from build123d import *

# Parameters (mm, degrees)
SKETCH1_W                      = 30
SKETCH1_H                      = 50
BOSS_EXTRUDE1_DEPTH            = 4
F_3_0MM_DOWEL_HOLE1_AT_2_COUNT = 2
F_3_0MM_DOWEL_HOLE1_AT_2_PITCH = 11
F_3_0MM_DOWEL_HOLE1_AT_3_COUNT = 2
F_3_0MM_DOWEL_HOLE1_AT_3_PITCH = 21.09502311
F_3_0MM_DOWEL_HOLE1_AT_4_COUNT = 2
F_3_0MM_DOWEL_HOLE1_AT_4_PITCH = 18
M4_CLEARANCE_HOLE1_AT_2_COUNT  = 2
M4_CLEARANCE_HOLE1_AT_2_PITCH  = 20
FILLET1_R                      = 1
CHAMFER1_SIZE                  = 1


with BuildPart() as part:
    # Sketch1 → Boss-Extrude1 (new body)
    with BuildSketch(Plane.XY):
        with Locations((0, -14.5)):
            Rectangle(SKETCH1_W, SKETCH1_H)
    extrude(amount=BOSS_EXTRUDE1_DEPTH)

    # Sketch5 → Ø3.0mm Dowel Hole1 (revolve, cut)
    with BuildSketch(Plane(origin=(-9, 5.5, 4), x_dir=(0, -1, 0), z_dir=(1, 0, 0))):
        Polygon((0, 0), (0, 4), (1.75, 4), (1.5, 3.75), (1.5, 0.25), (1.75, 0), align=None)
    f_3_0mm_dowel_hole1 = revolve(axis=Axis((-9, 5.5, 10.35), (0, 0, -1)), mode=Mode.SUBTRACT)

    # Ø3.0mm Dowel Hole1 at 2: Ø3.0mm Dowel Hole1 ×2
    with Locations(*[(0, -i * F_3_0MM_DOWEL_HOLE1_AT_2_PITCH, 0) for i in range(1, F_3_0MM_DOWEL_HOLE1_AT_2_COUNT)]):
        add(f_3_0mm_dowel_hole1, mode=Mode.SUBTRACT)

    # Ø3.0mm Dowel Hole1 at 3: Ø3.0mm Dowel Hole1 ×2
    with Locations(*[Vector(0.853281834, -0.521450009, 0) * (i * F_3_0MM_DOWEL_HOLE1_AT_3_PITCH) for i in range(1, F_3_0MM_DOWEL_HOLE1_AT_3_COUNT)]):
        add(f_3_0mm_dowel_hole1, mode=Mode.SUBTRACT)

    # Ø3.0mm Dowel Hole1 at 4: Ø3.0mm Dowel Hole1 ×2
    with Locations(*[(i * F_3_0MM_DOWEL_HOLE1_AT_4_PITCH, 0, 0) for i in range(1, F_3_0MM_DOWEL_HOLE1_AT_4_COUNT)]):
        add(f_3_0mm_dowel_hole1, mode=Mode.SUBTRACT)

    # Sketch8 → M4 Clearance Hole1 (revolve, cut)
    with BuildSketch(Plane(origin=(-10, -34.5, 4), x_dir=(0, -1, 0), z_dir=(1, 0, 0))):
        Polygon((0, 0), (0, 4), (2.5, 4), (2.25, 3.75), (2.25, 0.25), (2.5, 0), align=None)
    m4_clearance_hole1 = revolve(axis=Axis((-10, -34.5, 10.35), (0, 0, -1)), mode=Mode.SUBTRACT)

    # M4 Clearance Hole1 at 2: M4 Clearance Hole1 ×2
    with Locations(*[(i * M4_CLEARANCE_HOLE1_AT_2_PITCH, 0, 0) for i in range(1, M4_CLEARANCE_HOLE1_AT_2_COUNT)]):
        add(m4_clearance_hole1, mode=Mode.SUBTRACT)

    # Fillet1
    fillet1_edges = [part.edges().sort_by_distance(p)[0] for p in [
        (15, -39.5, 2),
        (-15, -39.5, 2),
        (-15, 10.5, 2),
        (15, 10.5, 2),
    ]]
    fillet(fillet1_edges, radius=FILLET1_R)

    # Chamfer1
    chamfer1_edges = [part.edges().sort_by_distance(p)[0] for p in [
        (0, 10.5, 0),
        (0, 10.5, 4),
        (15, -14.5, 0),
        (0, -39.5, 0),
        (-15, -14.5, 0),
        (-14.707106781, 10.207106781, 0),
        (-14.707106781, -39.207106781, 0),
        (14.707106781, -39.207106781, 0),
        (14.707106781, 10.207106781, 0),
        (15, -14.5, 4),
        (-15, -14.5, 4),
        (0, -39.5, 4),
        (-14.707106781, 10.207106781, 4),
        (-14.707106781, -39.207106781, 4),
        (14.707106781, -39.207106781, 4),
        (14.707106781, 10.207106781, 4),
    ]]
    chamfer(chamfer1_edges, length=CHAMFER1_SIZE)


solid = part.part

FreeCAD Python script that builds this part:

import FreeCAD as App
import Part
import Sketcher

V = App.Vector
Q = App.Units.Quantity


def edges_at(feature, points):
    """Names of the edges that pass closest to the given points."""
    edges = feature.Shape.Edges
    near = lambda p: min(range(len(edges)), key=lambda i: edges[i].distToShape(Part.Vertex(*p))[0])
    return sorted({f"Edge{near(p) + 1}" for p in points})

doc = App.newDocument("Part")
body = doc.addObject("PartDesign::Body", "Body")

# Sketch on XY plane
sketch1 = body.newObject("Sketcher::SketchObject", "Sketch")
sketch1.AttachmentSupport = (doc.getObject("XY_Plane"), [""])
sketch1.MapMode = "FlatFace"
sketch1.addGeometry([
    Part.LineSegment(V(-15, 10, 0), V(-15, -40, 0)),
    Part.LineSegment(V(-15, -40, 0), V(15, -40, 0)),
    Part.LineSegment(V(15, -40, 0), V(15, 10, 0)),
    Part.LineSegment(V(15, 10, 0), V(-15, 10, 0)),
], False)
sketch1.addConstraint([
    Sketcher.Constraint("Coincident", 0, 2, 1, 1),
    Sketcher.Constraint("Coincident", 1, 2, 2, 1),
    Sketcher.Constraint("Coincident", 2, 2, 3, 1),
    Sketcher.Constraint("Coincident", 3, 2, 0, 1),
    Sketcher.Constraint("Vertical", 0),
    Sketcher.Constraint("Horizontal", 1),
    Sketcher.Constraint("Vertical", 2),
    Sketcher.Constraint("Horizontal", 3),
    Sketcher.Constraint("DistanceX", 1, 1, 1, 2, Q("30 mm")),
    Sketcher.Constraint("DistanceY", 0, 2, 0, 1, Q("50 mm")),
    Sketcher.Constraint("DistanceX", 0, 2, -1, 1, Q("15 mm")),
    Sketcher.Constraint("DistanceY", 0, 2, -1, 1, Q("39.5 mm")),
])
pad1 = body.newObject("PartDesign::Pad", "Pad")
pad1.Profile = sketch1
pad1.Length = 4

# Sketch on YZ plane
sketch2 = body.newObject("Sketcher::SketchObject", "Sketch001")
sketch2.AttachmentSupport = (doc.getObject("YZ_Plane"), [""])
sketch2.MapMode = "FlatFace"
sketch2.AttachmentOffset = App.Placement(V(0, 0, -9), App.Rotation())
sketch2.addGeometry([
    Part.LineSegment(V(5.5, 0, 0), V(5.5, 4, 0)),  # 0
    Part.LineSegment(V(5.5, 4, 0), V(3.75, 4, 0)),  # 1
    Part.LineSegment(V(3.75, 4, 0), V(4, 3.75, 0)),  # 2
    Part.LineSegment(V(4, 3.75, 0), V(4, 0.25, 0)),  # 3
    Part.LineSegment(V(4, 0.25, 0), V(3.75, 0, 0)),  # 4
    Part.LineSegment(V(3.75, 0, 0), V(5.5, 0, 0)),  # 5
], False)
sketch2.addGeometry(Part.LineSegment(V(5.5, 4, 0), V(5.5, 0, 0)), True)  # axis
sketch2.addConstraint([
    Sketcher.Constraint("Coincident", 0, 2, 1, 1),
    Sketcher.Constraint("Coincident", 1, 2, 2, 1),
    Sketcher.Constraint("Coincident", 2, 2, 3, 1),
    Sketcher.Constraint("Coincident", 3, 2, 4, 1),
    Sketcher.Constraint("Coincident", 4, 2, 5, 1),
    Sketcher.Constraint("Coincident", 5, 2, 0, 1),
    Sketcher.Constraint("Vertical", 0),
    Sketcher.Constraint("Horizontal", 1),
    Sketcher.Constraint("Vertical", 3),
    Sketcher.Constraint("Horizontal", 5),
    Sketcher.Constraint("Vertical", 6),
    Sketcher.Constraint("Coincident", 6, 1, 0, 2),
    Sketcher.Constraint("PointOnObject", 4, 2, -1),
    Sketcher.Constraint("PointOnObject", 6, 2, -1),
    Sketcher.Constraint("Perpendicular", 2, 4),
    Sketcher.Constraint("Vertical", 1, 2, 4, 2),
    Sketcher.Constraint("Equal", 2, 4),
    Sketcher.Constraint("DistanceY", 0, 1, 0, 2, Q("4 mm")),
    Sketcher.Constraint("DistanceY", 3, 2, 3, 1, Q("3.5 mm")),
    Sketcher.Constraint("DistanceX", -1, 1, 2, 2, Q("4 mm")),
    Sketcher.Constraint("DistanceX", 1, 2, 1, 1, Q("1.75 mm")),
])
groove = body.newObject("PartDesign::Groove", "Groove")
groove.Profile = sketch2
groove.ReferenceAxis = (sketch2, ["Axis0"])
groove.Angle = 360
doc.recompute()

linearpattern = body.newObject("PartDesign::LinearPattern", "LinearPattern")
linearpattern.Originals = [groove]
linearpattern.Direction = (doc.getObject("Y_Axis"), [""])
linearpattern.Mode = "offset"
linearpattern.Offset = 11
linearpattern.Occurrences = 2
linearpattern.Reversed = True
body.Tip = linearpattern
doc.recompute()

datumline = body.newObject("PartDesign::Line", "DatumLine")
datumline.Placement = App.Placement(V(0, 0, 0), App.Rotation(V(0, 0, 1), V(0.853281834, -0.521450009, 0)))
linearpattern2 = body.newObject("PartDesign::LinearPattern", "LinearPattern001")
linearpattern2.Originals = [groove]
linearpattern2.Direction = (datumline, [""])
linearpattern2.Mode = "offset"
linearpattern2.Offset = 21.095023
linearpattern2.Occurrences = 2
body.Tip = linearpattern2
doc.recompute()

linearpattern3 = body.newObject("PartDesign::LinearPattern", "LinearPattern002")
linearpattern3.Originals = [groove]
linearpattern3.Direction = (doc.getObject("X_Axis"), [""])
linearpattern3.Mode = "offset"
linearpattern3.Offset = 18
linearpattern3.Occurrences = 2
body.Tip = linearpattern3

# Sketch on YZ plane
sketch3 = body.newObject("Sketcher::SketchObject", "Sketch002")
sketch3.AttachmentSupport = (doc.getObject("YZ_Plane"), [""])
sketch3.MapMode = "FlatFace"
sketch3.AttachmentOffset = App.Placement(V(0, 0, -10), App.Rotation())
sketch3.addGeometry([
    Part.LineSegment(V(-34.5, 0, 0), V(-34.5, 4, 0)),  # 0
    Part.LineSegment(V(-34.5, 4, 0), V(-37, 4, 0)),  # 1
    Part.LineSegment(V(-37, 4, 0), V(-36.75, 3.75, 0)),  # 2
    Part.LineSegment(V(-36.75, 3.75, 0), V(-36.75, 0.25, 0)),  # 3
    Part.LineSegment(V(-36.75, 0.25, 0), V(-37, 0, 0)),  # 4
    Part.LineSegment(V(-37, 0, 0), V(-34.5, 0, 0)),  # 5
], False)
sketch3.addGeometry(Part.LineSegment(V(-34.5, 4, 0), V(-34.5, 0, 0)), True)  # axis
sketch3.addConstraint([
    Sketcher.Constraint("Coincident", 0, 2, 1, 1),
    Sketcher.Constraint("Coincident", 1, 2, 2, 1),
    Sketcher.Constraint("Coincident", 2, 2, 3, 1),
    Sketcher.Constraint("Coincident", 3, 2, 4, 1),
    Sketcher.Constraint("Coincident", 4, 2, 5, 1),
    Sketcher.Constraint("Coincident", 5, 2, 0, 1),
    Sketcher.Constraint("Vertical", 0),
    Sketcher.Constraint("Horizontal", 1),
    Sketcher.Constraint("Vertical", 3),
    Sketcher.Constraint("Horizontal", 5),
    Sketcher.Constraint("Vertical", 6),
    Sketcher.Constraint("Coincident", 6, 1, 0, 2),
    Sketcher.Constraint("PointOnObject", 4, 2, -1),
    Sketcher.Constraint("PointOnObject", 6, 2, -1),
    Sketcher.Constraint("Perpendicular", 2, 4),
    Sketcher.Constraint("Vertical", 1, 2, 4, 2),
    Sketcher.Constraint("Equal", 2, 4),
    Sketcher.Constraint("DistanceY", 0, 1, 0, 2, Q("4 mm")),
    Sketcher.Constraint("DistanceX", 1, 2, 1, 1, Q("2.5 mm")),
    Sketcher.Constraint("DistanceY", 3, 2, 3, 1, Q("3.5 mm")),
    Sketcher.Constraint("DistanceX", 1, 2, -1, 1, Q("37 mm")),
])
groove2 = body.newObject("PartDesign::Groove", "Groove001")
groove2.Profile = sketch3
groove2.ReferenceAxis = (sketch3, ["Axis0"])
groove2.Angle = 360
doc.recompute()

linearpattern4 = body.newObject("PartDesign::LinearPattern", "LinearPattern003")
linearpattern4.Originals = [groove2]
linearpattern4.Direction = (doc.getObject("X_Axis"), [""])
linearpattern4.Mode = "offset"
linearpattern4.Offset = 20
linearpattern4.Occurrences = 2
body.Tip = linearpattern4
doc.recompute()

fillet = body.newObject("PartDesign::Fillet", "Fillet")
fillet.Base = (linearpattern4, edges_at(linearpattern4, [
    (15, -39.5, 2),
    (-15, -39.5, 2),
    (-15, 10.5, 2),
    (15, 10.5, 2),
]))
fillet.Radius = 1
doc.recompute()

chamfer = body.newObject("PartDesign::Chamfer", "Chamfer")
chamfer.Base = (fillet, edges_at(fillet, [
    (0, 10.5, 0),
    (0, 10.5, 4),
    (15, -14.5, 0),
    (0, -39.5, 0),
    (-15, -14.5, 0),
    (-14.707, 10.207, 0),
    (-14.707, -39.207, 0),
    (14.707, -39.207, 0),
    (14.707, 10.207, 0),
    (15, -14.5, 4),
    (-15, -14.5, 4),
    (0, -39.5, 4),
    (-14.707, 10.207, 4),
    (-14.707, -39.207, 4),
    (14.707, -39.207, 4),
    (14.707, 10.207, 4),
]))
chamfer.Size = 1

doc.recompute()
